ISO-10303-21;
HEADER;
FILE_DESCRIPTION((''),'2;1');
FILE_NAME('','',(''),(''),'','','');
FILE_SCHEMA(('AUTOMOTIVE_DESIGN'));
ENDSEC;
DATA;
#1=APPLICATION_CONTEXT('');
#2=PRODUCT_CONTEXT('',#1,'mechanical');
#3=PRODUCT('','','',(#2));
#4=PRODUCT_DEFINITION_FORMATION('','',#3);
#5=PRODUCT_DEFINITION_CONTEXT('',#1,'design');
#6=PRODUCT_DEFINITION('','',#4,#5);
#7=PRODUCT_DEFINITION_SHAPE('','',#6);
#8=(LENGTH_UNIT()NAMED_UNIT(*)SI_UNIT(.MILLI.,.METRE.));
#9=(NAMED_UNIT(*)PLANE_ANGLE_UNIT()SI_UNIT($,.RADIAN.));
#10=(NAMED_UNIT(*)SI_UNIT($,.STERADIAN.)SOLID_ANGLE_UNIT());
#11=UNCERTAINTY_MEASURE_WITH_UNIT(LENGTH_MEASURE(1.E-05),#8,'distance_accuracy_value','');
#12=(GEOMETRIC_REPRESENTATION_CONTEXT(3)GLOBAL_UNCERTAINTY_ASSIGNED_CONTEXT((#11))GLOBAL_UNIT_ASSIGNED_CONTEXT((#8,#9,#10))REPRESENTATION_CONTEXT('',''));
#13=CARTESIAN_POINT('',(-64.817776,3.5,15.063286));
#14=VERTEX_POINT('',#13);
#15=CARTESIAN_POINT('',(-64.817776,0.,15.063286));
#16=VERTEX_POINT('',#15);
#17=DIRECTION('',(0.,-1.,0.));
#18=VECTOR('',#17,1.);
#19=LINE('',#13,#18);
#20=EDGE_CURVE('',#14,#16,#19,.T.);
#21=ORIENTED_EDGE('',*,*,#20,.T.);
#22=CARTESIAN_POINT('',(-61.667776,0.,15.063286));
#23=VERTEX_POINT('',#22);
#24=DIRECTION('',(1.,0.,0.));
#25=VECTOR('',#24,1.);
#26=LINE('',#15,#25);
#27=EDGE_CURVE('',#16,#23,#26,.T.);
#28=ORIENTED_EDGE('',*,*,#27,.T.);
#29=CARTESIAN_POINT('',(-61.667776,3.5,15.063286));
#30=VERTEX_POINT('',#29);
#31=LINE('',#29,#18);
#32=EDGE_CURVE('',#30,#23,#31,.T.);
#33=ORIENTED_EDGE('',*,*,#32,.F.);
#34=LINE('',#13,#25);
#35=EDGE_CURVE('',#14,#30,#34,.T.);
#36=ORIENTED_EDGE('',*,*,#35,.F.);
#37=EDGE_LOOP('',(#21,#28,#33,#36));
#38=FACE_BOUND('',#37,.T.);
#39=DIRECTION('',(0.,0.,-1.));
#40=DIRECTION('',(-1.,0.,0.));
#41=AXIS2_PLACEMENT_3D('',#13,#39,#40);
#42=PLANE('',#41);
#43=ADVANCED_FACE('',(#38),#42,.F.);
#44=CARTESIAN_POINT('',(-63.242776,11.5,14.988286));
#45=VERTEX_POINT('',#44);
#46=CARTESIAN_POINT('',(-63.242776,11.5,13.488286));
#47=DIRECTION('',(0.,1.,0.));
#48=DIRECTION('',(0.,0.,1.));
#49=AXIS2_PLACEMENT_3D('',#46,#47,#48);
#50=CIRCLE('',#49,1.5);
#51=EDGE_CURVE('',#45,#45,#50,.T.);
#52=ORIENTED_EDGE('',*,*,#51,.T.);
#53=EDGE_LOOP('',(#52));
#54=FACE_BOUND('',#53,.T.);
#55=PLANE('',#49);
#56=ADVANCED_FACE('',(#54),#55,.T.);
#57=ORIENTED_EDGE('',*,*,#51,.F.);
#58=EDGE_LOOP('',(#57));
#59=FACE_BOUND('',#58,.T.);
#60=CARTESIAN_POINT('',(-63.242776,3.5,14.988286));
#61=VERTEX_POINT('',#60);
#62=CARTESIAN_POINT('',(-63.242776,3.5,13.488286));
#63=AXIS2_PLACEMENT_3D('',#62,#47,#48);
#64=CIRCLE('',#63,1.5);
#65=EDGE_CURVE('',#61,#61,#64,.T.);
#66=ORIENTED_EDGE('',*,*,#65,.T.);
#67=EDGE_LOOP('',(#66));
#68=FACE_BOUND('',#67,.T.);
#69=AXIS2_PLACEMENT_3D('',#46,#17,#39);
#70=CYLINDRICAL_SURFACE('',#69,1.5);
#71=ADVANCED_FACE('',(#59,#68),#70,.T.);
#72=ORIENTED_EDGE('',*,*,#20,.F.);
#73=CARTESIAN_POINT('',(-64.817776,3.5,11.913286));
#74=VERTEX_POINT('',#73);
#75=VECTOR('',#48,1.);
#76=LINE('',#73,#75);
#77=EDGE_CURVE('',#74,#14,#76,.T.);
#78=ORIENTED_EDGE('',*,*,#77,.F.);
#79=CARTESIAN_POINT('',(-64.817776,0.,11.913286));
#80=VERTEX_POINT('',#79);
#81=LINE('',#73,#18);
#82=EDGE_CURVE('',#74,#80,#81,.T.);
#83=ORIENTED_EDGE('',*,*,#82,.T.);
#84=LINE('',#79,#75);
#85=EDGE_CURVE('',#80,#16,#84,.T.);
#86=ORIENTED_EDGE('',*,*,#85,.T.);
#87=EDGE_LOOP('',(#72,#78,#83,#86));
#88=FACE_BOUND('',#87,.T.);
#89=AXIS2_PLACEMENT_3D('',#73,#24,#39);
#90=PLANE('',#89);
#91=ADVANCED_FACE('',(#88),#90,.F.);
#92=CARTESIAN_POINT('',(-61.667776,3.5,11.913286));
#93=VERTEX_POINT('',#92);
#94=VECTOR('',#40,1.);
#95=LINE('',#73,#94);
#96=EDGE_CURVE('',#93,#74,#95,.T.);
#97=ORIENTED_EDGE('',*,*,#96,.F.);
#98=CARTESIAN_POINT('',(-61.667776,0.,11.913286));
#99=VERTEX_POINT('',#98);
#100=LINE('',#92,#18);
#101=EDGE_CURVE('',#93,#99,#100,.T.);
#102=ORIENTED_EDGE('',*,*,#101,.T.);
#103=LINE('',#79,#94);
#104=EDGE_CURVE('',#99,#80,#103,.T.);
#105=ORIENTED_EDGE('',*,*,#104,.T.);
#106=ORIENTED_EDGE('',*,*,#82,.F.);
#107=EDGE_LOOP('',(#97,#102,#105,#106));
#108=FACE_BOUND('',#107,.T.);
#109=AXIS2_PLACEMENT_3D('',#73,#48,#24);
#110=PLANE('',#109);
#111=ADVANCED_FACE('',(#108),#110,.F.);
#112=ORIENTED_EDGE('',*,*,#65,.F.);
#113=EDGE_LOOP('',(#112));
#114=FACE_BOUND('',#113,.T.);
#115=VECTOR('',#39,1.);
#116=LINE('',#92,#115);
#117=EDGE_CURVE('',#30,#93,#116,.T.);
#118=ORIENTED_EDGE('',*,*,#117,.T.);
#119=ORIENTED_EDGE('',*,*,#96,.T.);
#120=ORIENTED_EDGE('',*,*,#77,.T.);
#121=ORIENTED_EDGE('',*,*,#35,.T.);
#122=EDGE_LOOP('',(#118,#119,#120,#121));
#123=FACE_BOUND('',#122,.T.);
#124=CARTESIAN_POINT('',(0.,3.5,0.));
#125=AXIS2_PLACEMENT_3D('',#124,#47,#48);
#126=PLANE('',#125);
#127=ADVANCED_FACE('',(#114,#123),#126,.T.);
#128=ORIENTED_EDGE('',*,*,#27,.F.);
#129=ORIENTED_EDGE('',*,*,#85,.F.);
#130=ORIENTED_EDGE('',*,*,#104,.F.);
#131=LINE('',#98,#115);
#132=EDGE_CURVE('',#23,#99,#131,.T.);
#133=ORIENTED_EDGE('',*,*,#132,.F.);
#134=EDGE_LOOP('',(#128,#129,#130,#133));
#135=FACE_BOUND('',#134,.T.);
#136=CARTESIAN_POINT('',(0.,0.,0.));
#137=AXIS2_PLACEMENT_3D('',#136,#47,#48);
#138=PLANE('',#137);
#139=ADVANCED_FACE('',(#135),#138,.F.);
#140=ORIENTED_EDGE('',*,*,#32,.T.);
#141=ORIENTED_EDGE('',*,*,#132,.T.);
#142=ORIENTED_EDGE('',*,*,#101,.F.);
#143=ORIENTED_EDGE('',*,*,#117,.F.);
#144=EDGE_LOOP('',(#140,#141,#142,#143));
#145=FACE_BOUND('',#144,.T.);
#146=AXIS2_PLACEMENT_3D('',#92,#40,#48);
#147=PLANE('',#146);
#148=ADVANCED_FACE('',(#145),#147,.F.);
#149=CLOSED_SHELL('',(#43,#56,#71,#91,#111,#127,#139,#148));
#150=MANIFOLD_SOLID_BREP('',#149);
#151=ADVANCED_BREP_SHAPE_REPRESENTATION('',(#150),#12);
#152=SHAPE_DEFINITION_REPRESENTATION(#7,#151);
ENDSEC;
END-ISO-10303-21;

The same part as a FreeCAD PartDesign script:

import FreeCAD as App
import Part
import Sketcher

V = App.Vector
Q = App.Units.Quantity


def add_polygon(sketch, points):
    """Adds a closed chain of lines whose ends are joined by coincident constraints."""
    first, n = sketch.GeometryCount, len(points)
    for a, b in zip(points, points[1:] + points[:1]):
        sketch.addGeometry(Part.LineSegment(App.Vector(*a, 0), App.Vector(*b, 0)), False)
    for i in range(n):
        sketch.addConstraint(Sketcher.Constraint("Coincident", first + i, 2, first + (i + 1) % n, 1))

doc = App.newDocument("Part")
params = doc.addObject("Spreadsheet::Sheet", "Params")
for row, (alias, value) in enumerate([
    ("sketch1_width", "3.15 mm"),
    ("pad1_length", "3.5 mm"),
    ("sketch2_diameter", "3 mm"),
    ("pad2_length", "8 mm"),
], start=1):
    params.set(f"A{row}", alias)
    params.set(f"B{row}", "=" + value)
    params.setAlias(f"B{row}", alias)

body = doc.addObject("PartDesign::Body", "Body")

# Sketch on XZ plane
sketch1 = body.newObject("Sketcher::SketchObject", "Sketch")
sketch1.AttachmentSupport = (doc.getObject("XZ_Plane"), [""])
sketch1.MapMode = "FlatFace"
add_polygon(sketch1, [(-64.8, 11.9), (-64.8, 15.1), (-61.7, 15.1), (-61.7, 11.9)])  # lines 0-3
sketch1.addConstraint([
    Sketcher.Constraint("Vertical", 0),
    Sketcher.Constraint("Horizontal", 1),
    Sketcher.Constraint("Vertical", 2),
    Sketcher.Constraint("Horizontal", 3),
    Sketcher.Constraint("Equal", 3, 0),
    Sketcher.Constraint("DistanceX", 1, 1, 1, 2, Q("3.15 mm")),
    Sketcher.Constraint("DistanceX", 0, 2, -1, 1, Q("64.817776 mm")),
    Sketcher.Constraint("DistanceY", -1, 1, 0, 2, Q("15.063286 mm")),
])
sketch1.setExpression("Constraints[9]", "Params.sketch1_width")
pad1 = body.newObject("PartDesign::Pad", "Pad")
pad1.Profile = sketch1
pad1.setExpression("Length", "Params.pad1_length")
pad1.Reversed = True

# Sketch on XZ plane
sketch2 = body.newObject("Sketcher::SketchObject", "Sketch001")
sketch2.AttachmentSupport = (doc.getObject("XZ_Plane"), [""])
sketch2.MapMode = "FlatFace"
sketch2.AttachmentOffset = App.Placement(V(0, 0, -3.5), App.Rotation())
sketch2.addGeometry(Part.Circle(V(-63.2, 13.5, 0), V(0, 0, 1), 1.5), False)
sketch2.addConstraint([
    Sketcher.Constraint("Diameter", 0, Q("3 mm")),
    Sketcher.Constraint("DistanceX", 0, 3, -1, 1, Q("63.242776 mm")),
    Sketcher.Constraint("DistanceY", -1, 1, 0, 3, Q("13.488286 mm")),
])
sketch2.setExpression("Constraints[0]", "Params.sketch2_diameter")
pad2 = body.newObject("PartDesign::Pad", "Pad001")
pad2.Profile = sketch2
pad2.setExpression("Length", "Params.pad2_length")
pad2.Reversed = True

doc.recompute()
